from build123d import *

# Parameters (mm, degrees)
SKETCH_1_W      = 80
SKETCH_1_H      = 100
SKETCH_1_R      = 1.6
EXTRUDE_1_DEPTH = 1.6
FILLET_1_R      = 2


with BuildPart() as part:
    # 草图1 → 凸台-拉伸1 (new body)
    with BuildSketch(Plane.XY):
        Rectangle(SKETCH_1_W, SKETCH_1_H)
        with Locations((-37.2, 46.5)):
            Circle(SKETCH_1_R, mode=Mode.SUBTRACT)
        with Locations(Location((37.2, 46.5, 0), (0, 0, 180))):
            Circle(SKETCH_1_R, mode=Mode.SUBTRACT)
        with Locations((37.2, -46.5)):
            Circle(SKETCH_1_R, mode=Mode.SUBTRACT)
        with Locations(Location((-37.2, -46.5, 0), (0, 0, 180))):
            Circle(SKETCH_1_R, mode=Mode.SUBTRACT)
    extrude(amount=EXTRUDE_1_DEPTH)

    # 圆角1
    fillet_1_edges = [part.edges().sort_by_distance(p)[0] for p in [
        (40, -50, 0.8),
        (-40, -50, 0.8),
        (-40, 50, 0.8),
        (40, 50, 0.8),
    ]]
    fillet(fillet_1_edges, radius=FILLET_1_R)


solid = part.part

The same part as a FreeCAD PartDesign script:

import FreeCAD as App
import Part
import Sketcher


def edges_at(feature, points):
    """Names of the edges that pass closest to the given points."""
    edges = feature.Shape.Edges
    near = lambda p: min(range(len(edges)), key=lambda i: edges[i].distToShape(Part.Vertex(*p))[0])
    return sorted({f"Edge{near(p) + 1}" for p in points})

doc = App.newDocument("Part")
params = doc.addObject("Spreadsheet::Sheet", "Params")
for row, (alias, value) in enumerate([
    ("sketch1_diameter", "3.2 mm"),
    ("sketch1_width", "80 mm"),
    ("sketch1_height", "100 mm"),
    ("pad1_length", "1.6 mm"),
    ("fillet_radius", "2 mm"),
], start=1):
    params.set(f"A{row}", alias)
    params.set(f"B{row}", "=" + value)
    params.setAlias(f"B{row}", alias)

body = doc.addObject("PartDesign::Body", "Body")

# Sketch on XY plane
sketch1 = doc.addObject("Sketcher::SketchObject", "Sketch")
body.addObject(sketch1)
sketch1.AttachmentSupport = (doc.XY_Plane, [""])
sketch1.MapMode = "FlatFace"
sketch1.addGeometry([
    Part.LineSegment(App.Vector(-40, 50, 0), App.Vector(-40, -50, 0)),  # 0
    Part.LineSegment(App.Vector(-40, -50, 0), App.Vector(40, -50, 0)),  # 1
    Part.LineSegment(App.Vector(40, -50, 0), App.Vector(40, 50, 0)),  # 2
    Part.LineSegment(App.Vector(40, 50, 0), App.Vector(-40, 50, 0)),  # 3
    Part.Circle(App.Vector(-37.2, -46.5, 0), App.Vector(0, 0, 1), 1.6),  # 4
    Part.Circle(App.Vector(37.2, -46.5, 0), App.Vector(0, 0, 1), 1.6),  # 5
    Part.Circle(App.Vector(-37.2, 46.5, 0), App.Vector(0, 0, 1), 1.6),  # 6
    Part.Circle(App.Vector(37.2, 46.5, 0), App.Vector(0, 0, 1), 1.6),  # 7
], False)
sketch1.addConstraint([
    Sketcher.Constraint("Coincident", 0, 2, 1, 1),
    Sketcher.Constraint("Coincident", 1, 2, 2, 1),
    Sketcher.Constraint("Coincident", 2, 2, 3, 1),
    Sketcher.Constraint("Coincident", 3, 2, 0, 1),
    Sketcher.Constraint("Vertical", 0),
    Sketcher.Constraint("Horizontal", 1),
    Sketcher.Constraint("Vertical", 2),
    Sketcher.Constraint("Horizontal", 3),
    Sketcher.Constraint("Equal", 4, 5),
    Sketcher.Constraint("Equal", 5, 6),
    Sketcher.Constraint("Equal", 6, 7),
    Sketcher.Constraint("Symmetric", 5, 3, 6, 3, -1, 1),
    Sketcher.Constraint("Symmetric", 4, 3, 7, 3, -1, 1),
    Sketcher.Constraint("Symmetric", 0, 2, 2, 2, -1, 1),
    Sketcher.Constraint("Symmetric", 4, 3, 5, 3, -2),
    Sketcher.Constraint("Diameter", 4, 3.2),
    Sketcher.Constraint("DistanceX", 1, 1, 1, 2, 80.0),
    Sketcher.Constraint("DistanceY", 0, 2, 0, 1, 100.0),
    Sketcher.Constraint("DistanceY", 4, 3, 6, 3, 93.0),
    Sketcher.Constraint("DistanceX", 4, 3, -1, 1, 37.2),
])
sketch1.setExpression("Constraints[15]", "Params.sketch1_diameter")
sketch1.setExpression("Constraints[16]", "Params.sketch1_width")
sketch1.setExpression("Constraints[17]", "Params.sketch1_height")
pad1 = doc.addObject("PartDesign::Pad", "Pad")
body.addObject(pad1)
pad1.Profile = sketch1
pad1.setExpression("Length", "Params.pad1_length")
doc.recompute()

fillet = doc.addObject("PartDesign::Fillet", "Fillet")
body.addObject(fillet)
fillet.Base = (pad1, edges_at(pad1, [
    (40, -50, 0.8),
    (-40, -50, 0.8),
    (-40, 50, 0.8),
    (40, 50, 0.8),
]))
fillet.setExpression("Radius", "Params.fillet_radius")

doc.recompute()
